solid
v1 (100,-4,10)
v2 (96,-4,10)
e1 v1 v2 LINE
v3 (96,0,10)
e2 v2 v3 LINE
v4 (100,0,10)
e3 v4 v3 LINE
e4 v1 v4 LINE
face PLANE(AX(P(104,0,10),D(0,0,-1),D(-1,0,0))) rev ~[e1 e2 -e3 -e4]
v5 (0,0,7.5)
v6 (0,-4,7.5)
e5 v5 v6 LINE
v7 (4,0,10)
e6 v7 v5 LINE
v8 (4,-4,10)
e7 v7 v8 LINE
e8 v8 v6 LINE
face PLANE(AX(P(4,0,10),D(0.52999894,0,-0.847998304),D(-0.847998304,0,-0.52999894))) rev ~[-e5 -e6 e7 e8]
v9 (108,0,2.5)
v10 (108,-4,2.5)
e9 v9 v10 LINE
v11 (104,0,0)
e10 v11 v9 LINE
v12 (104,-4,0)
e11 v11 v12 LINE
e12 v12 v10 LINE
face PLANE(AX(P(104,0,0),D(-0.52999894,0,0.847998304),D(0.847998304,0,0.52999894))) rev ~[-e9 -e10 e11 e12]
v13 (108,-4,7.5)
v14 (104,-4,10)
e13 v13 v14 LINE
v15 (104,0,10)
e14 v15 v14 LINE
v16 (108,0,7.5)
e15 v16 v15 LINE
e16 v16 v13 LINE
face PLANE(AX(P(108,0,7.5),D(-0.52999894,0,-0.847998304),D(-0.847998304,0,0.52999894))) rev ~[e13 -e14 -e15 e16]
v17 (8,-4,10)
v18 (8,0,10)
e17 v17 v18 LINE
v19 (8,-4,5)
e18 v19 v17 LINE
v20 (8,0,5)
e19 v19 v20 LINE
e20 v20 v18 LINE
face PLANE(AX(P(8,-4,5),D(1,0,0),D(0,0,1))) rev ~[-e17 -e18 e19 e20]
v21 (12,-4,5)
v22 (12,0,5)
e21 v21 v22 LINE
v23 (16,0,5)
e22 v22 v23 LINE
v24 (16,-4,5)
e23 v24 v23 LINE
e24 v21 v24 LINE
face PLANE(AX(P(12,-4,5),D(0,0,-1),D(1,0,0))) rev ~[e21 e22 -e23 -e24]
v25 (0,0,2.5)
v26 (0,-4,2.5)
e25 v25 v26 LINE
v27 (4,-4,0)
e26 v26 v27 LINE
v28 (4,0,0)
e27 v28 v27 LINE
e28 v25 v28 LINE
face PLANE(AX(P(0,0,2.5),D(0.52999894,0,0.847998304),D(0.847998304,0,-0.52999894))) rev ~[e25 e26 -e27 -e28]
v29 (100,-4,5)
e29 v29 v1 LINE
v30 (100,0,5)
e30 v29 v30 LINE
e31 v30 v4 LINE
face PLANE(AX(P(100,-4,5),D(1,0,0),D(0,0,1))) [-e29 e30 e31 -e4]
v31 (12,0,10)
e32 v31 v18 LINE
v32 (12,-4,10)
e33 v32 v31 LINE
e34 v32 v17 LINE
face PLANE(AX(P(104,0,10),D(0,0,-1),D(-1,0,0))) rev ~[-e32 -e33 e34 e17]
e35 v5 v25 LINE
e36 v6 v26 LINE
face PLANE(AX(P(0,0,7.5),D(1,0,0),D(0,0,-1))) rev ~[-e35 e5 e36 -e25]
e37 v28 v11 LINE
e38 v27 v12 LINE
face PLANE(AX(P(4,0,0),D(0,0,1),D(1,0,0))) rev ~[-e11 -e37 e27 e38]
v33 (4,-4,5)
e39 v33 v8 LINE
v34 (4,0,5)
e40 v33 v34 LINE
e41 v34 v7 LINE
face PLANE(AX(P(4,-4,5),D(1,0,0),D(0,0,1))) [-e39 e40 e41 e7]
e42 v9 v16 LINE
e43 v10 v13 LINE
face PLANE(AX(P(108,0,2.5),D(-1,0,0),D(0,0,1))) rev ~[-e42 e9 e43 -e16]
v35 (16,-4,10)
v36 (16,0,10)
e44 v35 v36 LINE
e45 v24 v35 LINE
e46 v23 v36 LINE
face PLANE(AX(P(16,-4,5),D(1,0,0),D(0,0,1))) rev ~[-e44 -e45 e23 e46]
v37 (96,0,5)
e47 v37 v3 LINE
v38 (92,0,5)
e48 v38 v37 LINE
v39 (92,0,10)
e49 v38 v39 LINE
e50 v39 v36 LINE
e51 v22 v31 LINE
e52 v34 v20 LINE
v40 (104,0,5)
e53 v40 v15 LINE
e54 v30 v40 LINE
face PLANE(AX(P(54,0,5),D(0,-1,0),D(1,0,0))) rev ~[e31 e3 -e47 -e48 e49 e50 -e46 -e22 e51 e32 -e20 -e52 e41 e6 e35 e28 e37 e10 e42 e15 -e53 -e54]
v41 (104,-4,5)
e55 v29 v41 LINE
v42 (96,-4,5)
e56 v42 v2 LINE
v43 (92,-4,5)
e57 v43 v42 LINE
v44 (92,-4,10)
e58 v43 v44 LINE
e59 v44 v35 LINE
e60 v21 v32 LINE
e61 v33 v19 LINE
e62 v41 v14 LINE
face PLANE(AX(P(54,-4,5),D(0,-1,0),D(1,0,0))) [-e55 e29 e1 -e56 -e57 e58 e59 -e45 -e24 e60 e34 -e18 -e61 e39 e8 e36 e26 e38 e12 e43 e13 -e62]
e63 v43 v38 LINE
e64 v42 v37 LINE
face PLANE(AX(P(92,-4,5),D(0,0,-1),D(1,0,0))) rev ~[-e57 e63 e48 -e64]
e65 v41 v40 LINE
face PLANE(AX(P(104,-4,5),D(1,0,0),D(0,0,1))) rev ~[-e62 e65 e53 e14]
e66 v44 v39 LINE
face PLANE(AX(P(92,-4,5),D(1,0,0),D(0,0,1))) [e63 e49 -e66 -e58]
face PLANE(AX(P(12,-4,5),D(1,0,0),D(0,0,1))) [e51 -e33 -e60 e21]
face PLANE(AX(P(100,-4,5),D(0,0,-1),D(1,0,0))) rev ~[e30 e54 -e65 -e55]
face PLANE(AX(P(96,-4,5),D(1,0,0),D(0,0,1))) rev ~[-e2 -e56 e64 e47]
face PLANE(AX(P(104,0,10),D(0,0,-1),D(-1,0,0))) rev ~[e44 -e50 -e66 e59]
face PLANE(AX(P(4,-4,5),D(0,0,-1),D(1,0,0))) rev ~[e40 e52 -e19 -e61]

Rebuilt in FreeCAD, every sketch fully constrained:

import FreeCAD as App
import Part
import Sketcher
from FreeCAD import Vector
Q = App.Units.Quantity

doc = App.newDocument("Part")
body = doc.addObject("PartDesign::Body", "Body")

# Sketch on XZ plane
sketch1 = body.newObject("Sketcher::SketchObject", "Sketch")
sketch1.AttachmentSupport = (doc.getObject("XZ_Plane"), [""])
sketch1.MapMode = "FlatFace"
sketch1.addGeometry([
    Part.LineSegment(Vector(0, 2.5, 0), Vector(4, 0, 0)),  # 0
    Part.LineSegment(Vector(4, 0, 0), Vector(104, 0, 0)),  # 1
    Part.LineSegment(Vector(104, 0, 0), Vector(108, 2.5, 0)),  # 2
    Part.LineSegment(Vector(108, 2.5, 0), Vector(108, 7.5, 0)),  # 3
    Part.LineSegment(Vector(108, 7.5, 0), Vector(104, 10, 0)),  # 4
    Part.LineSegment(Vector(104, 10, 0), Vector(4, 10, 0)),  # 5
    Part.LineSegment(Vector(4, 10, 0), Vector(0, 7.5, 0)),  # 6
    Part.LineSegment(Vector(0, 7.5, 0), Vector(0, 2.5, 0)),  # 7
], False)
sketch1.addConstraint([
    Sketcher.Constraint("Coincident", 0, 2, 1, 1),
    Sketcher.Constraint("Coincident", 1, 2, 2, 1),
    Sketcher.Constraint("Coincident", 2, 2, 3, 1),
    Sketcher.Constraint("Coincident", 3, 2, 4, 1),
    Sketcher.Constraint("Coincident", 4, 2, 5, 1),
    Sketcher.Constraint("Coincident", 5, 2, 6, 1),
    Sketcher.Constraint("Coincident", 6, 2, 7, 1),
    Sketcher.Constraint("Coincident", 7, 2, 0, 1),
    Sketcher.Constraint("Horizontal", 1),
    Sketcher.Constraint("Vertical", 3),
    Sketcher.Constraint("Horizontal", 5),
    Sketcher.Constraint("Vertical", 7),
    Sketcher.Constraint("PointOnObject", 0, 2, -1),
    Sketcher.Constraint("PointOnObject", 6, 2, -2),
    Sketcher.Constraint("Parallel", 0, 4),
    Sketcher.Constraint("Parallel", 2, 6),
    Sketcher.Constraint("Horizontal", 3, 2, 6, 2),
    Sketcher.Constraint("Horizontal", 2, 2, 7, 2),
    Sketcher.Constraint("Vertical", 1, 2, 4, 2),
    Sketcher.Constraint("Vertical", 0, 2, 5, 2),
    Sketcher.Constraint("DistanceX", 1, 1, 1, 2, Q("100 mm")),
    Sketcher.Constraint("DistanceY", 3, 1, 3, 2, Q("5 mm")),
    Sketcher.Constraint("DistanceX", -1, 1, 0, 2, Q("4 mm")),
    Sketcher.Constraint("DistanceY", -1, 1, 4, 2, Q("10 mm")),
])
pad1 = body.newObject("PartDesign::Pad", "Pad")
pad1.Profile = sketch1
pad1.Length = 4

# Sketch on XZ plane
sketch2 = body.newObject("Sketcher::SketchObject", "Sketch001")
sketch2.AttachmentSupport = (doc.getObject("XZ_Plane"), [""])
sketch2.MapMode = "FlatFace"
sketch2.AttachmentOffset = App.Placement(Vector(0, 0, 4), App.Rotation())
sketch2.addGeometry([
    Part.LineSegment(Vector(4, 10, 0), Vector(4, 5, 0)),  # 0
    Part.LineSegment(Vector(4, 5, 0), Vector(8, 5, 0)),  # 1
    Part.LineSegment(Vector(8, 5, 0), Vector(8, 10, 0)),  # 2
    Part.LineSegment(Vector(8, 10, 0), Vector(4, 10, 0)),  # 3
    Part.LineSegment(Vector(12, 10, 0), Vector(12, 5, 0)),  # 4
    Part.LineSegment(Vector(12, 5, 0), Vector(16, 5, 0)),  # 5
    Part.LineSegment(Vector(16, 5, 0), Vector(16, 10, 0)),  # 6
    Part.LineSegment(Vector(16, 10, 0), Vector(12, 10, 0)),  # 7
    Part.LineSegment(Vector(100, 10, 0), Vector(100, 5, 0)),  # 8
    Part.LineSegment(Vector(100, 5, 0), Vector(104, 5, 0)),  # 9
    Part.LineSegment(Vector(104, 5, 0), Vector(104, 10, 0)),  # 10
    Part.LineSegment(Vector(104, 10, 0), Vector(100, 10, 0)),  # 11
    Part.LineSegment(Vector(92, 10, 0), Vector(92, 5, 0)),  # 12
    Part.LineSegment(Vector(92, 5, 0), Vector(96, 5, 0)),  # 13
    Part.LineSegment(Vector(96, 5, 0), Vector(96, 10, 0)),  # 14
    Part.LineSegment(Vector(96, 10, 0), Vector(92, 10, 0)),  # 15
], False)
sketch2.addConstraint([
    Sketcher.Constraint("Coincident", 0, 2, 1, 1),
    Sketcher.Constraint("Coincident", 1, 2, 2, 1),
    Sketcher.Constraint("Coincident", 2, 2, 3, 1),
    Sketcher.Constraint("Coincident", 3, 2, 0, 1),
    Sketcher.Constraint("Coincident", 4, 2, 5, 1),
    Sketcher.Constraint("Coincident", 5, 2, 6, 1),
    Sketcher.Constraint("Coincident", 6, 2, 7, 1),
    Sketcher.Constraint("Coincident", 7, 2, 4, 1),
    Sketcher.Constraint("Coincident", 8, 2, 9, 1),
    Sketcher.Constraint("Coincident", 9, 2, 10, 1),
    Sketcher.Constraint("Coincident", 10, 2, 11, 1),
    Sketcher.Constraint("Coincident", 11, 2, 8, 1),
    Sketcher.Constraint("Coincident", 12, 2, 13, 1),
    Sketcher.Constraint("Coincident", 13, 2, 14, 1),
    Sketcher.Constraint("Coincident", 14, 2, 15, 1),
    Sketcher.Constraint("Coincident", 15, 2, 12, 1),
    Sketcher.Constraint("Vertical", 0),
    Sketcher.Constraint("Horizontal", 1),
    Sketcher.Constraint("Vertical", 2),
    Sketcher.Constraint("Horizontal", 3),
    Sketcher.Constraint("Vertical", 4),
    Sketcher.Constraint("Horizontal", 5),
    Sketcher.Constraint("Vertical", 6),
    Sketcher.Constraint("Horizontal", 7),
    Sketcher.Constraint("Vertical", 8),
    Sketcher.Constraint("Horizontal", 9),
    Sketcher.Constraint("Vertical", 10),
    Sketcher.Constraint("Horizontal", 11),
    Sketcher.Constraint("Vertical", 12),
    Sketcher.Constraint("Horizontal", 13),
    Sketcher.Constraint("Vertical", 14),
    Sketcher.Constraint("Horizontal", 15),
    Sketcher.Constraint("Horizontal", 1, 2, 4, 2),
    Sketcher.Constraint("Horizontal", 3, 2, 6, 2),
    Sketcher.Constraint("Horizontal", 5, 2, 8, 2),
    Sketcher.Constraint("Horizontal", 7, 2, 10, 2),
    Sketcher.Constraint("Horizontal", 9, 2, 12, 2),
    Sketcher.Constraint("Horizontal", 11, 2, 14, 2),
    Sketcher.Constraint("Equal", 3, 5),
    Sketcher.Constraint("Equal", 7, 9),
    Sketcher.Constraint("Equal", 11, 13),
    Sketcher.Constraint("DistanceX", 1, 1, 1, 2, Q("4 mm")),
    Sketcher.Constraint("DistanceY", 0, 2, 0, 1, Q("5 mm")),
    Sketcher.Constraint("DistanceX", -1, 1, 0, 2, Q("4 mm")),
    Sketcher.Constraint("DistanceY", -1, 1, 0, 2, Q("5 mm")),
    Sketcher.Constraint("DistanceX", -1, 1, 4, 2, Q("12 mm")),
    Sketcher.Constraint("DistanceX", -1, 1, 8, 2, Q("100 mm")),
    Sketcher.Constraint("DistanceX", -1, 1, 12, 2, Q("92 mm")),
])
pocket1 = body.newObject("PartDesign::Pocket", "Pocket")
pocket1.Profile = sketch2
pocket1.Type = "ThroughAll"

doc.recompute()
